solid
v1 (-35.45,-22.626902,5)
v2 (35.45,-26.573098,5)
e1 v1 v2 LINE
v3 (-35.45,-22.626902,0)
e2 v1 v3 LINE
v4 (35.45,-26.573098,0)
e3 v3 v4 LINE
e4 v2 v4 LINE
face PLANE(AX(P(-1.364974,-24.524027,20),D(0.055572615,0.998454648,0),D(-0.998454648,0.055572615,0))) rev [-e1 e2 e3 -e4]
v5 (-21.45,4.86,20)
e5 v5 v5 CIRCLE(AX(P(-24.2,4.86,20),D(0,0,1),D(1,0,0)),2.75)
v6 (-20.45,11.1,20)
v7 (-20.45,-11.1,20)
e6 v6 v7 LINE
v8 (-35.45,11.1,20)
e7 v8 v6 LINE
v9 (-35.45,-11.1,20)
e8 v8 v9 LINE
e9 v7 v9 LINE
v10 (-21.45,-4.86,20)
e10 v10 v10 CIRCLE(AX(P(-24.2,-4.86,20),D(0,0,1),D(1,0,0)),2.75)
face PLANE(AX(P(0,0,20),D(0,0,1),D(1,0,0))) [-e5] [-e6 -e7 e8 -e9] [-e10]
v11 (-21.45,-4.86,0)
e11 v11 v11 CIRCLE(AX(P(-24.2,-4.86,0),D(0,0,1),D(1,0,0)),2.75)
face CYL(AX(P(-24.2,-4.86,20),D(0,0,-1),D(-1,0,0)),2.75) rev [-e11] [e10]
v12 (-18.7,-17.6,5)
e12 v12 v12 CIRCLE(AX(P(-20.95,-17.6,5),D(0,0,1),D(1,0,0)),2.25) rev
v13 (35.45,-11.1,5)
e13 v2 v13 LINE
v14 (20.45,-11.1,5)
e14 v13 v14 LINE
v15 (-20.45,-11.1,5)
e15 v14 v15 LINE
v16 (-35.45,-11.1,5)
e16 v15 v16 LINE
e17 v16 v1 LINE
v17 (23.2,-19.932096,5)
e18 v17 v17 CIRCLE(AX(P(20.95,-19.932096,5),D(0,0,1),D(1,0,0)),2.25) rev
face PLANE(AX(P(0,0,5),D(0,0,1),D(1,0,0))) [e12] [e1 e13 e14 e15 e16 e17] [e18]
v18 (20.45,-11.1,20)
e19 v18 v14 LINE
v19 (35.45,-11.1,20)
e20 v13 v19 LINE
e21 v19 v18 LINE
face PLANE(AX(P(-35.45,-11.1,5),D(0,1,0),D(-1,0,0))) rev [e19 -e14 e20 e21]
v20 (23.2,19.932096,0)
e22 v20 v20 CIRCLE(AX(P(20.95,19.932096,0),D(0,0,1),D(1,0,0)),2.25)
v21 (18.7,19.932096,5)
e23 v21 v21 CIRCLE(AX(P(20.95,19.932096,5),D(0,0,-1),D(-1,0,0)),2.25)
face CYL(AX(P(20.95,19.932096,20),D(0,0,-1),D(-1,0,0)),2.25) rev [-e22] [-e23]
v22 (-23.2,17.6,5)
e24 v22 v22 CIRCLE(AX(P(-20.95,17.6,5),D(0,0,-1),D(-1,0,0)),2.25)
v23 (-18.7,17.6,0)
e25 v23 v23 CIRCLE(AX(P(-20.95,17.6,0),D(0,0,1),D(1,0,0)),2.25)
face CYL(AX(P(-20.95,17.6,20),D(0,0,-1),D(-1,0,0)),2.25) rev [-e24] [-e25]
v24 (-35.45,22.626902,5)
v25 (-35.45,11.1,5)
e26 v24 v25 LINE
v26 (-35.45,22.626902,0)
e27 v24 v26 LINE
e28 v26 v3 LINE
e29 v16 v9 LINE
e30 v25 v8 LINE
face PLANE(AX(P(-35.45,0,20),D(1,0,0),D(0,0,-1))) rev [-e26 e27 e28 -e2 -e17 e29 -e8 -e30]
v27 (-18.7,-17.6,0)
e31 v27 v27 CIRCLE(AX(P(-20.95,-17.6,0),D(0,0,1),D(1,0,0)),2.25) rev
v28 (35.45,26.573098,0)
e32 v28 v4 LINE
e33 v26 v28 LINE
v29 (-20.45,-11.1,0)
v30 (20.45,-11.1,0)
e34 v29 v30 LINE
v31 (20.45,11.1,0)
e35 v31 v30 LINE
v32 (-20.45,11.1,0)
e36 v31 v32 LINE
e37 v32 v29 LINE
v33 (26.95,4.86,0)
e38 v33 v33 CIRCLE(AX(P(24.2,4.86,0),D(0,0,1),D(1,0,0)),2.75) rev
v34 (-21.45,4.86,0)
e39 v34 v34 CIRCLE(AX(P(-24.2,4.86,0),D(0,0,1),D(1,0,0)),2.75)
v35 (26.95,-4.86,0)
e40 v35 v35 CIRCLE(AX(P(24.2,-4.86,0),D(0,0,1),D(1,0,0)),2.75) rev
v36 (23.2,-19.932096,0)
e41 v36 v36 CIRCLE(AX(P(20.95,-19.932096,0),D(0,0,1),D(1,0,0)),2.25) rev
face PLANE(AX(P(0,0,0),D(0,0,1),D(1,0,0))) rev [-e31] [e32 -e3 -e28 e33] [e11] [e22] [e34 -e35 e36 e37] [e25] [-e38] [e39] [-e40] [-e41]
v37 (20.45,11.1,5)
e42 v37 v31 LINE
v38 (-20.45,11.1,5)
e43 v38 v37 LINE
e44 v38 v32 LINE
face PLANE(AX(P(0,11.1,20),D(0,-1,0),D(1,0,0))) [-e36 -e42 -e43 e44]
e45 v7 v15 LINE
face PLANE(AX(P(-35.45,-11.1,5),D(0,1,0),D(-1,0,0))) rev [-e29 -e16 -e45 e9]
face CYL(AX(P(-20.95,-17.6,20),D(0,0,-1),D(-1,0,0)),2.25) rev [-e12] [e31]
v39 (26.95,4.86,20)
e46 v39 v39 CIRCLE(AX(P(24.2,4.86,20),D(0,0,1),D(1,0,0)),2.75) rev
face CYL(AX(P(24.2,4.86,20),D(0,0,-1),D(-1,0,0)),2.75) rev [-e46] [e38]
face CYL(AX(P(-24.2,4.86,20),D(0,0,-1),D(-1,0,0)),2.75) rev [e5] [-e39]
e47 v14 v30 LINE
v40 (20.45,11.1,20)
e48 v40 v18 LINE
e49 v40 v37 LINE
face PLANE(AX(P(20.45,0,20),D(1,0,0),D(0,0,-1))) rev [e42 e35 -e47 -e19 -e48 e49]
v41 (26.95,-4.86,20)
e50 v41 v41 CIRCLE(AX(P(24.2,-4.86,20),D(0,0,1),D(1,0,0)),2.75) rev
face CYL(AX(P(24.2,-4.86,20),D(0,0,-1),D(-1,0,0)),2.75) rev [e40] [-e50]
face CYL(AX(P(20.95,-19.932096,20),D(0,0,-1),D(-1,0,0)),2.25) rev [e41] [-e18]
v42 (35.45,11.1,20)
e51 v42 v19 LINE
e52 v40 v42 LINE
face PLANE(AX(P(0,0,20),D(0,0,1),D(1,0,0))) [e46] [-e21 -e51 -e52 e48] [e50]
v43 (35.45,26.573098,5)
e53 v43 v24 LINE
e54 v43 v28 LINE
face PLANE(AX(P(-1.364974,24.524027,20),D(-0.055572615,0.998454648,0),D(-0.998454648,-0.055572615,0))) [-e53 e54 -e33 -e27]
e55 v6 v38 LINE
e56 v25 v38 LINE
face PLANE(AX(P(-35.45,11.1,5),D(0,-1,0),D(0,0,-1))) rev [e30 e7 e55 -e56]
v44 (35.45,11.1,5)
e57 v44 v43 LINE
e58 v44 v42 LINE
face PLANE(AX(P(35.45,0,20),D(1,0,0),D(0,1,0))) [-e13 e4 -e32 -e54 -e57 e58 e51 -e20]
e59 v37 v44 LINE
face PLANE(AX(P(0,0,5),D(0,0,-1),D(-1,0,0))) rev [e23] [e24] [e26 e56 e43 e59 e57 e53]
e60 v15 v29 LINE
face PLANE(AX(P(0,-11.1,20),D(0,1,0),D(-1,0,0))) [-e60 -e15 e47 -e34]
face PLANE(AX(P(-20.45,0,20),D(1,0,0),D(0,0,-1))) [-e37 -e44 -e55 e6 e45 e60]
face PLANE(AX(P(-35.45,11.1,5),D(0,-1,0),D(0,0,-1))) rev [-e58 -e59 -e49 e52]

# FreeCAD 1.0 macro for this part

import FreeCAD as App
import Part
import Sketcher

V = App.Vector
Q = App.Units.Quantity

doc = App.newDocument("Part")
body = doc.addObject("PartDesign::Body", "Body")

# Sketch on XY plane
sketch1 = body.newObject("Sketcher::SketchObject", "Sketch")
sketch1.AttachmentSupport = (doc.getObject("XY_Plane"), [""])
sketch1.MapMode = "FlatFace"
sketch1.addGeometry(Part.LineSegment(V(-35.45, 22.626902, 0), V(-35.45, -22.626902, 0)), False)
sketch1.addGeometry(Part.LineSegment(V(-35.45, -22.626902, 0), V(35.45, -26.573098, 0)), False)
sketch1.addGeometry(Part.LineSegment(V(35.45, -26.573098, 0), V(35.45, 26.573098, 0)), False)
sketch1.addGeometry(Part.LineSegment(V(35.45, 26.573098, 0), V(-35.45, 22.626902, 0)), False)
sketch1.addGeometry(Part.Circle(V(-20.95, -17.6, 0), V(0, 0, 1), 2.25), False)
sketch1.addGeometry(Part.Circle(V(-24.2, -4.86, 0), V(0, 0, 1), 2.75), False)
sketch1.addGeometry(Part.Circle(V(20.95, -19.932096, 0), V(0, 0, 1), 2.25), False)
sketch1.addGeometry(Part.Circle(V(24.2, -4.86, 0), V(0, 0, 1), 2.75), False)
sketch1.addGeometry(Part.Circle(V(-24.2, 4.86, 0), V(0, 0, 1), 2.75), False)
sketch1.addGeometry(Part.Circle(V(-20.95, 17.6, 0), V(0, 0, 1), 2.25), False)
sketch1.addGeometry(Part.LineSegment(V(20.45, -11.1, 0), V(-20.45, -11.1, 0)), False)
sketch1.addGeometry(Part.LineSegment(V(-20.45, -11.1, 0), V(-20.45, 11.1, 0)), False)
sketch1.addGeometry(Part.LineSegment(V(-20.45, 11.1, 0), V(20.45, 11.1, 0)), False)
sketch1.addGeometry(Part.LineSegment(V(20.45, 11.1, 0), V(20.45, -11.1, 0)), False)
sketch1.addGeometry(Part.Circle(V(24.2, 4.86, 0), V(0, 0, 1), 2.75), False)
sketch1.addGeometry(Part.Circle(V(20.95, 19.932096, 0), V(0, 0, 1), 2.25), False)
sketch1.addConstraint(Sketcher.Constraint("Coincident", 0, 2, 1, 1))
sketch1.addConstraint(Sketcher.Constraint("Coincident", 1, 2, 2, 1))
sketch1.addConstraint(Sketcher.Constraint("Coincident", 2, 2, 3, 1))
sketch1.addConstraint(Sketcher.Constraint("Coincident", 3, 2, 0, 1))
sketch1.addConstraint(Sketcher.Constraint("Coincident", 10, 2, 11, 1))
sketch1.addConstraint(Sketcher.Constraint("Coincident", 11, 2, 12, 1))
sketch1.addConstraint(Sketcher.Constraint("Coincident", 12, 2, 13, 1))
sketch1.addConstraint(Sketcher.Constraint("Coincident", 13, 2, 10, 1))
sketch1.addConstraint(Sketcher.Constraint("Vertical", 0))
sketch1.addConstraint(Sketcher.Constraint("Vertical", 2))
sketch1.addConstraint(Sketcher.Constraint("Horizontal", 10))
sketch1.addConstraint(Sketcher.Constraint("Vertical", 11))
sketch1.addConstraint(Sketcher.Constraint("Horizontal", 12))
sketch1.addConstraint(Sketcher.Constraint("Vertical", 13))
sketch1.addConstraint(Sketcher.Constraint("Equal", 4, 6))
sketch1.addConstraint(Sketcher.Constraint("Equal", 5, 7))
sketch1.addConstraint(Sketcher.Constraint("Equal", 7, 8))
sketch1.addConstraint(Sketcher.Constraint("Equal", 6, 9))
sketch1.addConstraint(Sketcher.Constraint("Equal", 8, 14))
sketch1.addConstraint(Sketcher.Constraint("Equal", 9, 15))
sketch1.addConstraint(Sketcher.Constraint("Symmetric", 7, 3, 8, 3, -1, 1))
sketch1.addConstraint(Sketcher.Constraint("Symmetric", 5, 3, 14, 3, -1, 1))
sketch1.addConstraint(Sketcher.Constraint("Symmetric", 10, 2, 12, 2, -1, 1))
sketch1.addConstraint(Sketcher.Constraint("Symmetric", 5, 3, 7, 3, -2))
sketch1.addConstraint(Sketcher.Constraint("Symmetric", 4, 3, 9, 3, -1))
sketch1.addConstraint(Sketcher.Constraint("Symmetric", 6, 3, 15, 3, -1))
sketch1.addConstraint(Sketcher.Constraint("Equal", 1, 3))
sketch1.addConstraint(Sketcher.Constraint("Diameter", 4, Q("4.5 mm")))
sketch1.addConstraint(Sketcher.Constraint("Diameter", 5, Q("5.5 mm")))
sketch1.addConstraint(Sketcher.Constraint("DistanceX", 10, 2, 10, 1, Q("40.9 mm")))
sketch1.addConstraint(Sketcher.Constraint("DistanceY", 11, 1, 11, 2, Q("22.2 mm")))
sketch1.addConstraint(Sketcher.Constraint("DistanceX", 0, 2, 10, 2, Q("15 mm")))
sketch1.addConstraint(Sketcher.Constraint("DistanceX", 12, 2, 2, 2, Q("15 mm")))
sketch1.addConstraint(Sketcher.Constraint("DistanceY", 4, 3, -1, 1, Q("17.6 mm")))
sketch1.addConstraint(Sketcher.Constraint("DistanceX", 5, 3, -1, 1, Q("24.2 mm")))
sketch1.addConstraint(Sketcher.Constraint("DistanceX", 4, 3, 6, 3, Q("41.9 mm")))
sketch1.addConstraint(Sketcher.Constraint("DistanceX", 0, 2, 4, 3, Q("14.5 mm")))
sketch1.addConstraint(Sketcher.Constraint("DistanceY", 5, 3, -1, 1, Q("4.86 mm")))
sketch1.addConstraint(Sketcher.Constraint("DistanceY", 1, 2, 6, 3, Q("6.641002 mm")))
sketch1.addConstraint(Sketcher.Constraint("DistanceY", 15, 3, 2, 2, Q("6.641002 mm")))
sketch1.addConstraint(Sketcher.Constraint("DistanceY", 0, 2, -1, 1, Q("22.626902 mm")))
sketch1.addConstraint(Sketcher.Constraint("DistanceY", 1, 2, -1, 1, Q("26.573098 mm")))
pad1 = body.newObject("PartDesign::Pad", "Pad")
pad1.Profile = sketch1
pad1.Length = 20

# Sketch on XY plane
sketch2 = body.newObject("Sketcher::SketchObject", "Sketch001")
sketch2.AttachmentSupport = (doc.getObject("XY_Plane"), [""])
sketch2.MapMode = "FlatFace"
sketch2.AttachmentOffset = App.Placement(V(0, 0, 20), App.Rotation())
sketch2.addGeometry(Part.LineSegment(V(-35.45, 26.573098, 0), V(-35.45, 11.1, 0)), False)
sketch2.addGeometry(Part.LineSegment(V(-35.45, 11.1, 0), V(35.45, 11.1, 0)), False)
sketch2.addGeometry(Part.LineSegment(V(35.45, 11.1, 0), V(35.45, 26.573098, 0)), False)
sketch2.addGeometry(Part.LineSegment(V(35.45, 26.573098, 0), V(-35.45, 26.573098, 0)), False)
sketch2.addGeometry(Part.LineSegment(V(-35.45, -11.1, 0), V(-35.45, -26.573098, 0)), False)
sketch2.addGeometry(Part.LineSegment(V(-35.45, -26.573098, 0), V(35.45, -26.573098, 0)), False)
sketch2.addGeometry(Part.LineSegment(V(35.45, -26.573098, 0), V(35.45, -11.1, 0)), False)
sketch2.addGeometry(Part.LineSegment(V(35.45, -11.1, 0), V(-35.45, -11.1, 0)), False)
sketch2.addConstraint(Sketcher.Constraint("Coincident", 0, 2, 1, 1))
sketch2.addConstraint(Sketcher.Constraint("Coincident", 1, 2, 2, 1))
sketch2.addConstraint(Sketcher.Constraint("Coincident", 2, 2, 3, 1))
sketch2.addConstraint(Sketcher.Constraint("Coincident", 3, 2, 0, 1))
sketch2.addConstraint(Sketcher.Constraint("Coincident", 4, 2, 5, 1))
sketch2.addConstraint(Sketcher.Constraint("Coincident", 5, 2, 6, 1))
sketch2.addConstraint(Sketcher.Constraint("Coincident", 6, 2, 7, 1))
sketch2.addConstraint(Sketcher.Constraint("Coincident", 7, 2, 4, 1))
sketch2.addConstraint(Sketcher.Constraint("Vertical", 0))
sketch2.addConstraint(Sketcher.Constraint("Horizontal", 1))
sketch2.addConstraint(Sketcher.Constraint("Vertical", 2))
sketch2.addConstraint(Sketcher.Constraint("Horizontal", 3))
sketch2.addConstraint(Sketcher.Constraint("Vertical", 4))
sketch2.addConstraint(Sketcher.Constraint("Horizontal", 5))
sketch2.addConstraint(Sketcher.Constraint("Vertical", 6))
sketch2.addConstraint(Sketcher.Constraint("Horizontal", 7))
sketch2.addConstraint(Sketcher.Constraint("Symmetric", 2, 2, 4, 2, -1, 1))
sketch2.addConstraint(Sketcher.Constraint("Symmetric", 0, 2, 6, 2, -1, 1))
sketch2.addConstraint(Sketcher.Constraint("Vertical", 3, 2, 4, 2))
sketch2.addConstraint(Sketcher.Constraint("DistanceX", 1, 1, 1, 2, Q("70.9 mm")))
sketch2.addConstraint(Sketcher.Constraint("DistanceY", -1, 1, 0, 2, Q("11.1 mm")))
sketch2.addConstraint(Sketcher.Constraint("DistanceY", 0, 2, 0, 1, Q("15.473098 mm")))
pocket1 = body.newObject("PartDesign::Pocket", "Pocket")
pocket1.Profile = sketch2
pocket1.Length = 15

doc.recompute()
